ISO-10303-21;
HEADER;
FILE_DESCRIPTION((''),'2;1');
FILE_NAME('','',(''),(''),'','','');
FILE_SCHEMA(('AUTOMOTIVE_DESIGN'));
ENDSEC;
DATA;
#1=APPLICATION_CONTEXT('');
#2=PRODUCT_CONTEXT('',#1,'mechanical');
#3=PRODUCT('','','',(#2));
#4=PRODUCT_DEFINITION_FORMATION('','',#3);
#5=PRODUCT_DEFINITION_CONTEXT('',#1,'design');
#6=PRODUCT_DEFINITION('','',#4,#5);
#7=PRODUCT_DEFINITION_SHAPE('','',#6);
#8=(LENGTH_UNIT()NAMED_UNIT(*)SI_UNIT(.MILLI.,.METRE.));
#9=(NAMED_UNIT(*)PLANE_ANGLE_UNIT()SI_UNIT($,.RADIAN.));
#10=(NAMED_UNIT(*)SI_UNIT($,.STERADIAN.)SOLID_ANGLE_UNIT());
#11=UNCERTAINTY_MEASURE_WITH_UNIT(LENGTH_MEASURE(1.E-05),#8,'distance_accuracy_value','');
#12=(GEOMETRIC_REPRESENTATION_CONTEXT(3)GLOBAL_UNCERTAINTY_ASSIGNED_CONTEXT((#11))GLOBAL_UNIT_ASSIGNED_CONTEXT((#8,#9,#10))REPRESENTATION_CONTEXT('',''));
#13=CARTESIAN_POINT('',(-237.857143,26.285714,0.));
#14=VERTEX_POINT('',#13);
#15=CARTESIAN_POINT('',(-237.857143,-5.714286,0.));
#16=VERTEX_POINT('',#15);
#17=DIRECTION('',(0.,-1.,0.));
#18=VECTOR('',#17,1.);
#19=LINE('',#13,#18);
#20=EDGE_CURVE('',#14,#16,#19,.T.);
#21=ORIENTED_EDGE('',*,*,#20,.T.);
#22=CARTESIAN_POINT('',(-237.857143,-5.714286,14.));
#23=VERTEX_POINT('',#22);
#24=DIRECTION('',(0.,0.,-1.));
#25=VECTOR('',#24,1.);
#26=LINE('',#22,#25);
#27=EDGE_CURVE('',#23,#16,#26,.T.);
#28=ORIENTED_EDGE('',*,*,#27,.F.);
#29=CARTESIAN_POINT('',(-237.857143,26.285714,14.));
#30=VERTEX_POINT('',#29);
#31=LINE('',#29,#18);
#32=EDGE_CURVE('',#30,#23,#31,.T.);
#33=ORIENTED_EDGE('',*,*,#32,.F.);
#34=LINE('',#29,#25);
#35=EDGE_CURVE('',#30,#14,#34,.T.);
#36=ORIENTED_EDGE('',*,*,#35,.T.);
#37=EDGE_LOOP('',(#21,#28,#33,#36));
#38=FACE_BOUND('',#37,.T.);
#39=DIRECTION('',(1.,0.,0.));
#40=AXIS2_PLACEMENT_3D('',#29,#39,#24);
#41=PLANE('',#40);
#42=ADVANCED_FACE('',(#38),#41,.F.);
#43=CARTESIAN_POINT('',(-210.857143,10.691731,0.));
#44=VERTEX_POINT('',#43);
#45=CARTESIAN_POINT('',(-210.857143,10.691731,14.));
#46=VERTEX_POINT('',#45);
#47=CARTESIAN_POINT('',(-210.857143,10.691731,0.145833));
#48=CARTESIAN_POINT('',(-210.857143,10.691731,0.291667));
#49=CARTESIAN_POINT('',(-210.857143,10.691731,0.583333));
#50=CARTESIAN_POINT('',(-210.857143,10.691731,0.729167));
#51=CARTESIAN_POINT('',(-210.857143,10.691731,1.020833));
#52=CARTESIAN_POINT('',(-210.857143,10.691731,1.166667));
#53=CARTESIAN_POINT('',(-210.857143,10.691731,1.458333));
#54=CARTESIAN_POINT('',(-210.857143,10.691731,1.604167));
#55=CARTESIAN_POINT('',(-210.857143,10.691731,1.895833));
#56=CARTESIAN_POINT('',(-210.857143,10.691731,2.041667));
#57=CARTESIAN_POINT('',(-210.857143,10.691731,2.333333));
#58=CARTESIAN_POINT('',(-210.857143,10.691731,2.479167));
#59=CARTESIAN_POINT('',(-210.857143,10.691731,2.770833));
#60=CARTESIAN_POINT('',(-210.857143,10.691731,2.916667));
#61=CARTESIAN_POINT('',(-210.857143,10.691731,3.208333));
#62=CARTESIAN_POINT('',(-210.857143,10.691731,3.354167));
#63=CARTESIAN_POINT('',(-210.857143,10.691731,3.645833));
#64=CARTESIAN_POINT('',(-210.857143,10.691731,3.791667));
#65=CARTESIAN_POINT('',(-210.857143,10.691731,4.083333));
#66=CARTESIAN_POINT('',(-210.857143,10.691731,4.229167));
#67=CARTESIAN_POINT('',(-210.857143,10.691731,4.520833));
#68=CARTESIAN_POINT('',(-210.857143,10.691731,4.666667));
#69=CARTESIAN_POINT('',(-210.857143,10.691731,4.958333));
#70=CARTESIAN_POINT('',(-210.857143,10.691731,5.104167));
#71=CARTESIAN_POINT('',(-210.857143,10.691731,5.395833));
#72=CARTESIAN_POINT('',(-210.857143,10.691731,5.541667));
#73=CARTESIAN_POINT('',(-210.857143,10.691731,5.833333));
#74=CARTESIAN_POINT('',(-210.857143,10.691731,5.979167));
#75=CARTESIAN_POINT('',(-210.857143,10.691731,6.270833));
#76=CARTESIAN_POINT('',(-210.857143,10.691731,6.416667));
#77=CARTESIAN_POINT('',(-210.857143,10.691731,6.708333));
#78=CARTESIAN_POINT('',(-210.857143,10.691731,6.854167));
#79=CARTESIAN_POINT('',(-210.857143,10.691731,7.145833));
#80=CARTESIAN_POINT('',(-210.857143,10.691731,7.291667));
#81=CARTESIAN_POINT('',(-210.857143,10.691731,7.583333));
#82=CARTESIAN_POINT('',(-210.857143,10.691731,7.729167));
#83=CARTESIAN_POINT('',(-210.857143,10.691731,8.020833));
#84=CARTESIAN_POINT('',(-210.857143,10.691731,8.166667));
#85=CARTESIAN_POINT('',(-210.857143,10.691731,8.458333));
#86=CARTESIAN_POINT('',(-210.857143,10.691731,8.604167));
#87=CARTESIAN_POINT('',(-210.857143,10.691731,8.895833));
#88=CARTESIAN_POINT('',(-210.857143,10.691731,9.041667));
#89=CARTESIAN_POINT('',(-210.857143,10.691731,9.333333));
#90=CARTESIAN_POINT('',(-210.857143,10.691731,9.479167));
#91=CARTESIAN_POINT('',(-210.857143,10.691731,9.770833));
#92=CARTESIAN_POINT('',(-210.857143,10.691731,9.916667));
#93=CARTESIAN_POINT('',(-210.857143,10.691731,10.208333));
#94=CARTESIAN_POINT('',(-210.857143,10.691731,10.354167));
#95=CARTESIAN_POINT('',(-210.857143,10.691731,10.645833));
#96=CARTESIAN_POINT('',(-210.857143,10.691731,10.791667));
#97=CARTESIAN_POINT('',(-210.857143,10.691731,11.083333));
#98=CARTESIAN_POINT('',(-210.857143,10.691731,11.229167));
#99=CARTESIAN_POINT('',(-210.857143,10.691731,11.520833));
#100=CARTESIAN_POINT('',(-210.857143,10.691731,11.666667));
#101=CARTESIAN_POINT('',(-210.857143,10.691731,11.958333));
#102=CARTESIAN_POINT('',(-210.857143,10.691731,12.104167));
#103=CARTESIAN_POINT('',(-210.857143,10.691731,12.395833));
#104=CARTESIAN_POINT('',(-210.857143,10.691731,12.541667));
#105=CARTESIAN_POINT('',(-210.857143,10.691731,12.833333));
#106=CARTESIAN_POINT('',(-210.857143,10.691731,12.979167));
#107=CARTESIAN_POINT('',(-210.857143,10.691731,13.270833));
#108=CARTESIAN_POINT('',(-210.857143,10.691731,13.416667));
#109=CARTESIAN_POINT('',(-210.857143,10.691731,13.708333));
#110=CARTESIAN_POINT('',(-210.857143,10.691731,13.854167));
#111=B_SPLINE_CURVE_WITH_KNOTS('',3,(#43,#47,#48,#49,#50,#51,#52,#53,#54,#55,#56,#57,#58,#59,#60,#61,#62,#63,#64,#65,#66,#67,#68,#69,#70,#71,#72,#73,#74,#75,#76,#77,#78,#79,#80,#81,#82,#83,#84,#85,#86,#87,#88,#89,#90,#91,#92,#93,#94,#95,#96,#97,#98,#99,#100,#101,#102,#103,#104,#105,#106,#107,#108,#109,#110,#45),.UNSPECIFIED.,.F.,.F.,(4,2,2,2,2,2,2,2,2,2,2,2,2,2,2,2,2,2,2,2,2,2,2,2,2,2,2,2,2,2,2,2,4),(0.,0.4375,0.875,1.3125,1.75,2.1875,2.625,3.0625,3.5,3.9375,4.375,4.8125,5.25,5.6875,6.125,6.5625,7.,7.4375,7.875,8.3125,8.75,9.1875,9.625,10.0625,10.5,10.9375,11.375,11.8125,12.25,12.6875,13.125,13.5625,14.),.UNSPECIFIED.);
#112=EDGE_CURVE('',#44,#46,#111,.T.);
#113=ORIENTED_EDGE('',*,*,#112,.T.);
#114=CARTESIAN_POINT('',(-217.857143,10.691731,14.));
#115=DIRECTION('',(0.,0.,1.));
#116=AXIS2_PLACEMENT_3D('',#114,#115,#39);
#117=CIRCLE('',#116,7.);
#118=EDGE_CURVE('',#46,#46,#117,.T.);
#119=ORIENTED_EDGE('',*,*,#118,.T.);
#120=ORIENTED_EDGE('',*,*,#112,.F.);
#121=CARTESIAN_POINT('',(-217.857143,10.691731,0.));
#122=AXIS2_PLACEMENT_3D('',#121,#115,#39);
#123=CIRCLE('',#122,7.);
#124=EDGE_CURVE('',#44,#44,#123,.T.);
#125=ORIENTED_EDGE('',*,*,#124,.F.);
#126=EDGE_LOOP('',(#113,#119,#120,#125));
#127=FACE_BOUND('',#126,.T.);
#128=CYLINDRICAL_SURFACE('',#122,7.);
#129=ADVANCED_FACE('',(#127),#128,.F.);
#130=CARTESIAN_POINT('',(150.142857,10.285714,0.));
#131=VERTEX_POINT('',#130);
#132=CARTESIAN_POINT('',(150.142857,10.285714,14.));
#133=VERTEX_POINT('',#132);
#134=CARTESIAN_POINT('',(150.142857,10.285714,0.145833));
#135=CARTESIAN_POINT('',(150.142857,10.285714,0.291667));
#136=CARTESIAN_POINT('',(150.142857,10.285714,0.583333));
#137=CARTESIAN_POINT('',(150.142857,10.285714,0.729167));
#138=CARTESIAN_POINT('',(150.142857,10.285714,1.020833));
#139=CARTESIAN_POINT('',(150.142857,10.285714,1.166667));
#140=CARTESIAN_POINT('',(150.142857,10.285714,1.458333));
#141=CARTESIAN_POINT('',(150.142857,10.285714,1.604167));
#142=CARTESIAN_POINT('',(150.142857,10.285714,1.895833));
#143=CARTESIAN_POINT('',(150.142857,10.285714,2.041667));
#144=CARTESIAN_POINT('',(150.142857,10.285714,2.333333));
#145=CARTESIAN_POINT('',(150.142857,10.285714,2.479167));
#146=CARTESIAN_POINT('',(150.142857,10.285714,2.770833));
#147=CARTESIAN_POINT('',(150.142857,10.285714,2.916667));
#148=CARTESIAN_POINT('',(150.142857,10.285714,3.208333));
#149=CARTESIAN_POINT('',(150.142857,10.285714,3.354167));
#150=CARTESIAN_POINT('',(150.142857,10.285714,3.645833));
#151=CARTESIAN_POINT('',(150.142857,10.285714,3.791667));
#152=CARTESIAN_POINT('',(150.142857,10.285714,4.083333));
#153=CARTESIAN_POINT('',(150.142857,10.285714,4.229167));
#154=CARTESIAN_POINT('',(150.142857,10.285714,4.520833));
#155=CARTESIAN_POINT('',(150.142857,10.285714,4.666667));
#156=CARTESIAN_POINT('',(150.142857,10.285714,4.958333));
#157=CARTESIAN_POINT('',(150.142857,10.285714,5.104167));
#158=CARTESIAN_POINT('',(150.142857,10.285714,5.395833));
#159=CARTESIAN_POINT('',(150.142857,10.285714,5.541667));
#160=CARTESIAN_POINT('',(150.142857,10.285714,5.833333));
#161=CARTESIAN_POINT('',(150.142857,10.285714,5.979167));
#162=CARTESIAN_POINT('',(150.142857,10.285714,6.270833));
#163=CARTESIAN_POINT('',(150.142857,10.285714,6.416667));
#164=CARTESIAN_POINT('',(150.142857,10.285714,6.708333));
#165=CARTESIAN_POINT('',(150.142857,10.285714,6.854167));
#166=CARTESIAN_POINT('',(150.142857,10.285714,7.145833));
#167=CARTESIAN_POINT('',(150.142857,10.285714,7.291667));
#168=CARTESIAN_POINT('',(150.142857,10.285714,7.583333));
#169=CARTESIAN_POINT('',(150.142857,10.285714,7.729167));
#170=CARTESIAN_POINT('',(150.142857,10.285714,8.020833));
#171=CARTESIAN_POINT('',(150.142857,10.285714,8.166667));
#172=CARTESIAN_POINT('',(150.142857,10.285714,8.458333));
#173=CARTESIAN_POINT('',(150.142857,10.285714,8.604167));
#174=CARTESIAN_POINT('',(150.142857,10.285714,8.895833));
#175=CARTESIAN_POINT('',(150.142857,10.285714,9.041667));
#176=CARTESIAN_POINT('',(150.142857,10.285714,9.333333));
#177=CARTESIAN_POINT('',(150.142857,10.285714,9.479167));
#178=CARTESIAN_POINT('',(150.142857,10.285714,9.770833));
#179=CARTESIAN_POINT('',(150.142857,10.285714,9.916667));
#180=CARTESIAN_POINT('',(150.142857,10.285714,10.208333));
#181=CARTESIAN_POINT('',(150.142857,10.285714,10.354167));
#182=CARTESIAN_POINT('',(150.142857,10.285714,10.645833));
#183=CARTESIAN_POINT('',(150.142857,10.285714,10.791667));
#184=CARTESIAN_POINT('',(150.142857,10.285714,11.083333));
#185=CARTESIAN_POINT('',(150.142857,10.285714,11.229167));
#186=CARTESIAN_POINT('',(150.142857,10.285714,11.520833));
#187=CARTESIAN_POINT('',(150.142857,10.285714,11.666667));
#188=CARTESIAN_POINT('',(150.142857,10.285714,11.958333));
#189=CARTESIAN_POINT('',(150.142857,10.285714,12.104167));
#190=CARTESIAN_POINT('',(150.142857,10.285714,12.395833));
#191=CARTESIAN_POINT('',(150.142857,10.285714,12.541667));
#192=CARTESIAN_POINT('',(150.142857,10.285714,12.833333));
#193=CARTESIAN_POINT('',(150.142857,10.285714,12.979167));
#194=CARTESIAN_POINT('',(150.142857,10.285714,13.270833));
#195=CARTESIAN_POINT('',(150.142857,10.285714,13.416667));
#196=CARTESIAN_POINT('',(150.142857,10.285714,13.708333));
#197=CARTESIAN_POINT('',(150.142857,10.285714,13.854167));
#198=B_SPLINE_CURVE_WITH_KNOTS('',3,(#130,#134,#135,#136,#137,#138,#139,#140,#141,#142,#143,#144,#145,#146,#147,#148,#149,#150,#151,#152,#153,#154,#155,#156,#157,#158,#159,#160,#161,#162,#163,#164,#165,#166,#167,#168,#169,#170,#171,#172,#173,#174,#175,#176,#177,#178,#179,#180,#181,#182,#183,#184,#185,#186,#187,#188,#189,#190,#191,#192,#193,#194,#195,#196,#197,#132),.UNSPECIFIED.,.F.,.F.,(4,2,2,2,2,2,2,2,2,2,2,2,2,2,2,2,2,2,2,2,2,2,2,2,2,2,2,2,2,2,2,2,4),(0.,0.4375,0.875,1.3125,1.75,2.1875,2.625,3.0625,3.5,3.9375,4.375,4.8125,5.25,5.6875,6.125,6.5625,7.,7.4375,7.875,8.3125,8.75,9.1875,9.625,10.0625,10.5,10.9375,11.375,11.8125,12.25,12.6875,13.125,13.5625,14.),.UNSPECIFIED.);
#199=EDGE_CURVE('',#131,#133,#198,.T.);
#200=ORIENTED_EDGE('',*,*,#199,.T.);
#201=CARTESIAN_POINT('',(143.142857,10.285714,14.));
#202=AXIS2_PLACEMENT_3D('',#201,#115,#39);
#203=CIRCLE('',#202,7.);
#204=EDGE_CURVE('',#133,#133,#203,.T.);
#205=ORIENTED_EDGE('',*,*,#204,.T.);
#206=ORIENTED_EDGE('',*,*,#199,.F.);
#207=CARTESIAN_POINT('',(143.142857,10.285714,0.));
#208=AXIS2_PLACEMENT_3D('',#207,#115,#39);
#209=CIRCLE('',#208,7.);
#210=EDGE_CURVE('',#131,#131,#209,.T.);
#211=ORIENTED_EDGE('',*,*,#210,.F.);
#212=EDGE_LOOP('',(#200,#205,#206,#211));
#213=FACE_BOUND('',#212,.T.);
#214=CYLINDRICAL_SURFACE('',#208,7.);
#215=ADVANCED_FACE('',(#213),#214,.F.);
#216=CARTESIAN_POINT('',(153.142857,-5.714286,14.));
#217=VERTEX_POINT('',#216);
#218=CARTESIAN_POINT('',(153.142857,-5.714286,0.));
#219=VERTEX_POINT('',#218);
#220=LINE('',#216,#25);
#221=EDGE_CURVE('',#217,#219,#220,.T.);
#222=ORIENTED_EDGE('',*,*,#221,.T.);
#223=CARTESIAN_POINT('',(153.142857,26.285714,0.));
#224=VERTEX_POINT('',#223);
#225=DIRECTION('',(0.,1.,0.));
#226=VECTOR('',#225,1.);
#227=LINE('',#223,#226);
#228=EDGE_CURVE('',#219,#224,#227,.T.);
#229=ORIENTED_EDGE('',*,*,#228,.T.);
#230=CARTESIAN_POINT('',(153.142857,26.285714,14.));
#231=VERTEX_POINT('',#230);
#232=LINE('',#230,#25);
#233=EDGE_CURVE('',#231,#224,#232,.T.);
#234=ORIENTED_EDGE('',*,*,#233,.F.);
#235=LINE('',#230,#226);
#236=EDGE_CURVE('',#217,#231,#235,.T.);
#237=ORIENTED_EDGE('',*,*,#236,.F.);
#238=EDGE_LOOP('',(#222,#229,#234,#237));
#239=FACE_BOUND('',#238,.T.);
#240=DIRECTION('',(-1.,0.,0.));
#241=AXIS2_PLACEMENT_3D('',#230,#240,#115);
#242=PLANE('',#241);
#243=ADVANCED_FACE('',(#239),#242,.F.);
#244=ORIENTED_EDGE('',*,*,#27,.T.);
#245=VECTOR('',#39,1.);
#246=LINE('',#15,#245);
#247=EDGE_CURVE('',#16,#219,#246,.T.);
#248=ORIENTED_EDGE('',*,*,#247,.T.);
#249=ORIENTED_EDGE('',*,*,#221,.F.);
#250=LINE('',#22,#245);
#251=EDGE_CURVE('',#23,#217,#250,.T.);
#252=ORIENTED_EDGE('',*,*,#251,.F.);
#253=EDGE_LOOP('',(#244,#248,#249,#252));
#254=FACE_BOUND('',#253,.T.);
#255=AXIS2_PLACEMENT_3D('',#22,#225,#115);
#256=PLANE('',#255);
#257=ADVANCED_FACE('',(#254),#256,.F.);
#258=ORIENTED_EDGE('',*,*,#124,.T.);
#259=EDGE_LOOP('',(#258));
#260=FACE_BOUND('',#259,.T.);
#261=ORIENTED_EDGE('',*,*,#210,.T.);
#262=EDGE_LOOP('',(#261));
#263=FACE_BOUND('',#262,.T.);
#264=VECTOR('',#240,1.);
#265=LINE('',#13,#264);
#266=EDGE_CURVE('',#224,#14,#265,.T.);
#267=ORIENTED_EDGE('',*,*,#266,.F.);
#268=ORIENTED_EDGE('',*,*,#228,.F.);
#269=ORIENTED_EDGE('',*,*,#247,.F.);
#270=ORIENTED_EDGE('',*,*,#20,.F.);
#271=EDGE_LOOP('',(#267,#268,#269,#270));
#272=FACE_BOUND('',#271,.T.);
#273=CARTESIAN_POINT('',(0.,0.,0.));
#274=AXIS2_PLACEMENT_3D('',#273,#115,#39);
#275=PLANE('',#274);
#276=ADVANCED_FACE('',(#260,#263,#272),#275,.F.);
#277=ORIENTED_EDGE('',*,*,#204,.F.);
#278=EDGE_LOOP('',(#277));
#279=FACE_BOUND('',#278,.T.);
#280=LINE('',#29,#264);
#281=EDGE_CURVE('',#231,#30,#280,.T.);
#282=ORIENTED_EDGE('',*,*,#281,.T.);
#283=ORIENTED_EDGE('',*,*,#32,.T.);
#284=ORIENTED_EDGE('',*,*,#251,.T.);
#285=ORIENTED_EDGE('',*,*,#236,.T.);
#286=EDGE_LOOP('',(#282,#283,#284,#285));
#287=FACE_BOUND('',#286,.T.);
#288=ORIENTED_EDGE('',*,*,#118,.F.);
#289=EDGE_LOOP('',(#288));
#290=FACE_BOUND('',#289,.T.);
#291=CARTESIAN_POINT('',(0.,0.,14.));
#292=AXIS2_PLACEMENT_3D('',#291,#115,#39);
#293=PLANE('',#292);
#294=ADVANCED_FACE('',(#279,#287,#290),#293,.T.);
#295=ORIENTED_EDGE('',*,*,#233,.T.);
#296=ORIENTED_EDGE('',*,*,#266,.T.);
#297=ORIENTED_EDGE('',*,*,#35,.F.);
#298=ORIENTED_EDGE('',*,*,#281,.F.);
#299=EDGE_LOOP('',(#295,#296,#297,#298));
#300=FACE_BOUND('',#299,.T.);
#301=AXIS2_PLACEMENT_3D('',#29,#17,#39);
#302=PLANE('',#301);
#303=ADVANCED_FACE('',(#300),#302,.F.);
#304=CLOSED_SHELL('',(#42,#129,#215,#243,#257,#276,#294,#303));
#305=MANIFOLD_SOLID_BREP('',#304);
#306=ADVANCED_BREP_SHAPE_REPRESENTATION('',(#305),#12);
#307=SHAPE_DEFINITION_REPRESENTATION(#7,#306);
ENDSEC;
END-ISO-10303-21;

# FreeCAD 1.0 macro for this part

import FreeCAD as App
import Part
import Sketcher


def add_polygon(sketch, points):
    """Adds a closed chain of lines whose ends are joined by coincident constraints."""
    first, n = sketch.GeometryCount, len(points)
    for a, b in zip(points, points[1:] + points[:1]):
        sketch.addGeometry(Part.LineSegment(App.Vector(*a, 0), App.Vector(*b, 0)), False)
    for i in range(n):
        sketch.addConstraint(Sketcher.Constraint("Coincident", first + i, 2, first + (i + 1) % n, 1))

doc = App.newDocument("Part")
body = doc.addObject("PartDesign::Body", "Body")

sketch1 = body.newObject("Sketcher::SketchObject", "Sketch")
sketch1.AttachmentSupport = (doc.getObject("XY_Plane"), [""])
sketch1.MapMode = "FlatFace"
add_polygon(sketch1, [(-238, 26), (-238, -6), (153, -6), (153, 26)])
sketch1.addConstraint([
    Sketcher.Constraint("Vertical", 0),
    Sketcher.Constraint("Horizontal", 1),
    Sketcher.Constraint("Vertical", 2),
    Sketcher.Constraint("Horizontal", 3),
    Sketcher.Constraint("DistanceX", 1, 1, 1, 2, 391.0),
    Sketcher.Constraint("DistanceY", 0, 2, 0, 1, 32.0),
    Sketcher.Constraint("DistanceX", 0, 2, -1, 1, 237.857143),
    Sketcher.Constraint("DistanceY", 0, 2, -1, 1, 5.714286),
])
pad1 = body.newObject("PartDesign::Pad", "Pad")
pad1.Profile = sketch1
pad1.Length = 14

sketch2 = body.newObject("Sketcher::SketchObject", "Sketch001")
sketch2.AttachmentSupport = (doc.getObject("XY_Plane"), [""])
sketch2.MapMode = "FlatFace"
sketch2.AttachmentOffset = App.Placement(App.Vector(0, 0, 14), App.Rotation())
sketch2.addGeometry(Part.Circle(App.Vector(-218, 11, 0), App.Vector(0, 0, 1), 7), False)
sketch2.addConstraint([
    Sketcher.Constraint("Diameter", 0, 14.0),
    Sketcher.Constraint("DistanceY", -1, 1, 0, 3, 10.691731),
    Sketcher.Constraint("DistanceX", 0, 3, -1, 1, 217.857143),
])
pocket1 = body.newObject("PartDesign::Pocket", "Pocket")
pocket1.Profile = sketch2
pocket1.Type = "ThroughAll"

sketch3 = body.newObject("Sketcher::SketchObject", "Sketch002")
sketch3.AttachmentSupport = (doc.getObject("XY_Plane"), [""])
sketch3.MapMode = "FlatFace"
sketch3.AttachmentOffset = App.Placement(App.Vector(0, 0, 14), App.Rotation())
sketch3.addGeometry(Part.Circle(App.Vector(143, 10, 0), App.Vector(0, 0, 1), 7), False)
sketch3.addConstraint([
    Sketcher.Constraint("Diameter", 0, 14.0),
    Sketcher.Constraint("DistanceX", -1, 1, 0, 3, 143.142857),
    Sketcher.Constraint("DistanceY", -1, 1, 0, 3, 10.285714),
])
pocket2 = body.newObject("PartDesign::Pocket", "Pocket001")
pocket2.Profile = sketch3
pocket2.Type = "ThroughAll"

doc.recompute()
